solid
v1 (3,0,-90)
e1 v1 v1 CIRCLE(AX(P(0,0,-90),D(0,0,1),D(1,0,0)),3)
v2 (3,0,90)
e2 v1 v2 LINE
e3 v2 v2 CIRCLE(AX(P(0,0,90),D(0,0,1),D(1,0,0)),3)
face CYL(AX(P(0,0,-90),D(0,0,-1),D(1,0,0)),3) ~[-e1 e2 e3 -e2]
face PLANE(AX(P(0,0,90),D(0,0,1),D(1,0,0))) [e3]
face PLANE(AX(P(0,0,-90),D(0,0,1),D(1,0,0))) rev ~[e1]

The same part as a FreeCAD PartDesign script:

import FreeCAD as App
import Part
import Sketcher
from FreeCAD import Vector
Q = App.Units.Quantity

doc = App.newDocument("Part")
params = doc.addObject("Spreadsheet::Sheet", "Params")
for row, (alias, value) in enumerate([
    ("sketch1_diameter", "6 mm"),
    ("pad1_length", "180 mm"),
], start=1):
    params.set(f"A{row}", alias)
    params.set(f"B{row}", "=" + value)
    params.setAlias(f"B{row}", alias)

body = doc.addObject("PartDesign::Body", "Body")

# Sketch on XY plane
sketch1 = body.newObject("Sketcher::SketchObject", "Sketch")
sketch1.AttachmentSupport = (doc.getObject("XY_Plane"), [""])
sketch1.MapMode = "FlatFace"
sketch1.AttachmentOffset = App.Placement(Vector(0, 0, -90), App.Rotation())
sketch1.addGeometry(Part.Circle(Vector(0, 0, 0), Vector(0, 0, 1), 3), False)
sketch1.addConstraint([
    Sketcher.Constraint("Coincident", 0, 3, -1, 1),
    Sketcher.Constraint("Diameter", 0, Q("6 mm")),
])
sketch1.setExpression("Constraints[1]", "Params.sketch1_diameter")
pad1 = body.newObject("PartDesign::Pad", "Pad")
pad1.Profile = sketch1
pad1.setExpression("Length", "Params.pad1_length")

doc.recompute()
